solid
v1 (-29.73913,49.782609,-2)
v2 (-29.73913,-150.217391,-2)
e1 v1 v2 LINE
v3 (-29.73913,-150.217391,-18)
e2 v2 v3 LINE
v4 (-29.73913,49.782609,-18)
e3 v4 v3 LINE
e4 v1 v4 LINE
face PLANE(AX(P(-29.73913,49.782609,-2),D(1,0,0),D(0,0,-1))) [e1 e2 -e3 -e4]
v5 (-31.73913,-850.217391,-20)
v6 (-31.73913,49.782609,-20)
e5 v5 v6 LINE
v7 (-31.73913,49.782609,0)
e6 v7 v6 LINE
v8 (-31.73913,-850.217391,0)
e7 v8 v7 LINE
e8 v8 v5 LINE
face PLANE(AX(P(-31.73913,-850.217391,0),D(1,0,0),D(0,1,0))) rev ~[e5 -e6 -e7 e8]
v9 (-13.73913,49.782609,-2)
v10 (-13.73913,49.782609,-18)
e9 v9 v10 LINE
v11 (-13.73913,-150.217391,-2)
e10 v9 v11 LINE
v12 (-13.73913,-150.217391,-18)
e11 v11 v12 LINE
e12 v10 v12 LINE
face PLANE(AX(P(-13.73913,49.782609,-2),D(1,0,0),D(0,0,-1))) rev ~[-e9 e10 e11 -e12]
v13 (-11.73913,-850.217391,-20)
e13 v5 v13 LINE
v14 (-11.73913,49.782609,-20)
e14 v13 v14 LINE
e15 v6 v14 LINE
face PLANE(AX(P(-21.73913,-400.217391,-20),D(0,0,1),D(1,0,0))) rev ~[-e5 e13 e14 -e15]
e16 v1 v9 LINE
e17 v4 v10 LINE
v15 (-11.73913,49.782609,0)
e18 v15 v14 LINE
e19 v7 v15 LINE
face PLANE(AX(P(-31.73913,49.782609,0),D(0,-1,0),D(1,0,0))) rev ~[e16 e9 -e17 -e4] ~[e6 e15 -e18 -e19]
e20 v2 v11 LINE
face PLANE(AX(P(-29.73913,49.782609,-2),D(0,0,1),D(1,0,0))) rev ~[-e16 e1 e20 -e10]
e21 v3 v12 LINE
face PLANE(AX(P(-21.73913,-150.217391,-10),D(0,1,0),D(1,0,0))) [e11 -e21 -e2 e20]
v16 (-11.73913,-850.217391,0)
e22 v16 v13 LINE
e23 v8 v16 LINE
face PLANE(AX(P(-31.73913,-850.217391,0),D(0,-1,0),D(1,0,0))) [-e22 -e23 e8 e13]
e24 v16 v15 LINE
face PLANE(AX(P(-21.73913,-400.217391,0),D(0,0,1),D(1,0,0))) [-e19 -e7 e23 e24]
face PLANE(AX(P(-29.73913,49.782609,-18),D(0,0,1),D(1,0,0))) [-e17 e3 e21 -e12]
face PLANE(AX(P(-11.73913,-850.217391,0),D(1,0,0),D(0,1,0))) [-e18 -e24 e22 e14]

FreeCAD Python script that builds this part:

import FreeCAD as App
import Part
import Sketcher


def add_polygon(sketch, points):
    """Adds a closed chain of lines whose ends are joined by coincident constraints."""
    first, n = sketch.GeometryCount, len(points)
    for a, b in zip(points, points[1:] + points[:1]):
        sketch.addGeometry(Part.LineSegment(App.Vector(*a, 0), App.Vector(*b, 0)), False)
    for i in range(n):
        sketch.addConstraint(Sketcher.Constraint("Coincident", first + i, 2, first + (i + 1) % n, 1))

doc = App.newDocument("Part")
params = doc.addObject("Spreadsheet::Sheet", "Params")
for row, (alias, value) in enumerate([
    ("sketch1_width", "20 mm"),
    ("sketch1_height", "900 mm"),
    ("pad1_length", "20 mm"),
    ("sketch2_width", "16 mm"),
    ("pocket1_length", "200 mm"),
], start=1):
    params.set(f"A{row}", alias)
    params.set(f"B{row}", "=" + value)
    params.setAlias(f"B{row}", alias)

body = doc.addObject("PartDesign::Body", "Body")

sketch1 = body.newObject("Sketcher::SketchObject", "Sketch")
sketch1.AttachmentSupport = (doc.getObject("XY_Plane"), [""])
sketch1.MapMode = "FlatFace"
add_polygon(sketch1, [(-31.73913, 49.782609), (-31.73913, -850.217391), (-11.73913, -850.217391), (-11.73913, 49.782609)])
sketch1.addConstraint([
    Sketcher.Constraint("Vertical", 0),
    Sketcher.Constraint("Horizontal", 1),
    Sketcher.Constraint("Vertical", 2),
    Sketcher.Constraint("Horizontal", 3),
    Sketcher.Constraint("DistanceX", 1, 1, 1, 2, 20.0),
    Sketcher.Constraint("DistanceY", 0, 2, 0, 1, 900.0),
    Sketcher.Constraint("DistanceX", 0, 2, -1, 1, 31.73913),
    Sketcher.Constraint("DistanceY", 0, 2, -1, 1, 850.217391),
])
sketch1.setExpression("Constraints[8]", "Params.sketch1_width")
sketch1.setExpression("Constraints[9]", "Params.sketch1_height")
pad1 = body.newObject("PartDesign::Pad", "Pad")
pad1.Profile = sketch1
pad1.setExpression("Length", "Params.pad1_length")
pad1.Reversed = True

sketch2 = body.newObject("Sketcher::SketchObject", "Sketch001")
sketch2.AttachmentSupport = (doc.getObject("XZ_Plane"), [""])
sketch2.MapMode = "FlatFace"
sketch2.AttachmentOffset = App.Placement(App.Vector(0, 0, -49.782609), App.Rotation())
add_polygon(sketch2, [(-29.73913, -18), (-29.73913, -2), (-13.73913, -2), (-13.73913, -18)])
sketch2.addConstraint([
    Sketcher.Constraint("Vertical", 0),
    Sketcher.Constraint("Horizontal", 1),
    Sketcher.Constraint("Vertical", 2),
    Sketcher.Constraint("Horizontal", 3),
    Sketcher.Constraint("Equal", 3, 0),
    Sketcher.Constraint("DistanceX", 1, 1, 1, 2, 16.0),
    Sketcher.Constraint("DistanceY", 0, 2, -1, 1, 2.0),
    Sketcher.Constraint("DistanceX", 0, 2, -1, 1, 29.73913),
])
sketch2.setExpression("Constraints[9]", "Params.sketch2_width")
pocket1 = body.newObject("PartDesign::Pocket", "Pocket")
pocket1.Profile = sketch2
pocket1.setExpression("Length", "Params.pocket1_length")
pocket1.Reversed = True

doc.recompute()
